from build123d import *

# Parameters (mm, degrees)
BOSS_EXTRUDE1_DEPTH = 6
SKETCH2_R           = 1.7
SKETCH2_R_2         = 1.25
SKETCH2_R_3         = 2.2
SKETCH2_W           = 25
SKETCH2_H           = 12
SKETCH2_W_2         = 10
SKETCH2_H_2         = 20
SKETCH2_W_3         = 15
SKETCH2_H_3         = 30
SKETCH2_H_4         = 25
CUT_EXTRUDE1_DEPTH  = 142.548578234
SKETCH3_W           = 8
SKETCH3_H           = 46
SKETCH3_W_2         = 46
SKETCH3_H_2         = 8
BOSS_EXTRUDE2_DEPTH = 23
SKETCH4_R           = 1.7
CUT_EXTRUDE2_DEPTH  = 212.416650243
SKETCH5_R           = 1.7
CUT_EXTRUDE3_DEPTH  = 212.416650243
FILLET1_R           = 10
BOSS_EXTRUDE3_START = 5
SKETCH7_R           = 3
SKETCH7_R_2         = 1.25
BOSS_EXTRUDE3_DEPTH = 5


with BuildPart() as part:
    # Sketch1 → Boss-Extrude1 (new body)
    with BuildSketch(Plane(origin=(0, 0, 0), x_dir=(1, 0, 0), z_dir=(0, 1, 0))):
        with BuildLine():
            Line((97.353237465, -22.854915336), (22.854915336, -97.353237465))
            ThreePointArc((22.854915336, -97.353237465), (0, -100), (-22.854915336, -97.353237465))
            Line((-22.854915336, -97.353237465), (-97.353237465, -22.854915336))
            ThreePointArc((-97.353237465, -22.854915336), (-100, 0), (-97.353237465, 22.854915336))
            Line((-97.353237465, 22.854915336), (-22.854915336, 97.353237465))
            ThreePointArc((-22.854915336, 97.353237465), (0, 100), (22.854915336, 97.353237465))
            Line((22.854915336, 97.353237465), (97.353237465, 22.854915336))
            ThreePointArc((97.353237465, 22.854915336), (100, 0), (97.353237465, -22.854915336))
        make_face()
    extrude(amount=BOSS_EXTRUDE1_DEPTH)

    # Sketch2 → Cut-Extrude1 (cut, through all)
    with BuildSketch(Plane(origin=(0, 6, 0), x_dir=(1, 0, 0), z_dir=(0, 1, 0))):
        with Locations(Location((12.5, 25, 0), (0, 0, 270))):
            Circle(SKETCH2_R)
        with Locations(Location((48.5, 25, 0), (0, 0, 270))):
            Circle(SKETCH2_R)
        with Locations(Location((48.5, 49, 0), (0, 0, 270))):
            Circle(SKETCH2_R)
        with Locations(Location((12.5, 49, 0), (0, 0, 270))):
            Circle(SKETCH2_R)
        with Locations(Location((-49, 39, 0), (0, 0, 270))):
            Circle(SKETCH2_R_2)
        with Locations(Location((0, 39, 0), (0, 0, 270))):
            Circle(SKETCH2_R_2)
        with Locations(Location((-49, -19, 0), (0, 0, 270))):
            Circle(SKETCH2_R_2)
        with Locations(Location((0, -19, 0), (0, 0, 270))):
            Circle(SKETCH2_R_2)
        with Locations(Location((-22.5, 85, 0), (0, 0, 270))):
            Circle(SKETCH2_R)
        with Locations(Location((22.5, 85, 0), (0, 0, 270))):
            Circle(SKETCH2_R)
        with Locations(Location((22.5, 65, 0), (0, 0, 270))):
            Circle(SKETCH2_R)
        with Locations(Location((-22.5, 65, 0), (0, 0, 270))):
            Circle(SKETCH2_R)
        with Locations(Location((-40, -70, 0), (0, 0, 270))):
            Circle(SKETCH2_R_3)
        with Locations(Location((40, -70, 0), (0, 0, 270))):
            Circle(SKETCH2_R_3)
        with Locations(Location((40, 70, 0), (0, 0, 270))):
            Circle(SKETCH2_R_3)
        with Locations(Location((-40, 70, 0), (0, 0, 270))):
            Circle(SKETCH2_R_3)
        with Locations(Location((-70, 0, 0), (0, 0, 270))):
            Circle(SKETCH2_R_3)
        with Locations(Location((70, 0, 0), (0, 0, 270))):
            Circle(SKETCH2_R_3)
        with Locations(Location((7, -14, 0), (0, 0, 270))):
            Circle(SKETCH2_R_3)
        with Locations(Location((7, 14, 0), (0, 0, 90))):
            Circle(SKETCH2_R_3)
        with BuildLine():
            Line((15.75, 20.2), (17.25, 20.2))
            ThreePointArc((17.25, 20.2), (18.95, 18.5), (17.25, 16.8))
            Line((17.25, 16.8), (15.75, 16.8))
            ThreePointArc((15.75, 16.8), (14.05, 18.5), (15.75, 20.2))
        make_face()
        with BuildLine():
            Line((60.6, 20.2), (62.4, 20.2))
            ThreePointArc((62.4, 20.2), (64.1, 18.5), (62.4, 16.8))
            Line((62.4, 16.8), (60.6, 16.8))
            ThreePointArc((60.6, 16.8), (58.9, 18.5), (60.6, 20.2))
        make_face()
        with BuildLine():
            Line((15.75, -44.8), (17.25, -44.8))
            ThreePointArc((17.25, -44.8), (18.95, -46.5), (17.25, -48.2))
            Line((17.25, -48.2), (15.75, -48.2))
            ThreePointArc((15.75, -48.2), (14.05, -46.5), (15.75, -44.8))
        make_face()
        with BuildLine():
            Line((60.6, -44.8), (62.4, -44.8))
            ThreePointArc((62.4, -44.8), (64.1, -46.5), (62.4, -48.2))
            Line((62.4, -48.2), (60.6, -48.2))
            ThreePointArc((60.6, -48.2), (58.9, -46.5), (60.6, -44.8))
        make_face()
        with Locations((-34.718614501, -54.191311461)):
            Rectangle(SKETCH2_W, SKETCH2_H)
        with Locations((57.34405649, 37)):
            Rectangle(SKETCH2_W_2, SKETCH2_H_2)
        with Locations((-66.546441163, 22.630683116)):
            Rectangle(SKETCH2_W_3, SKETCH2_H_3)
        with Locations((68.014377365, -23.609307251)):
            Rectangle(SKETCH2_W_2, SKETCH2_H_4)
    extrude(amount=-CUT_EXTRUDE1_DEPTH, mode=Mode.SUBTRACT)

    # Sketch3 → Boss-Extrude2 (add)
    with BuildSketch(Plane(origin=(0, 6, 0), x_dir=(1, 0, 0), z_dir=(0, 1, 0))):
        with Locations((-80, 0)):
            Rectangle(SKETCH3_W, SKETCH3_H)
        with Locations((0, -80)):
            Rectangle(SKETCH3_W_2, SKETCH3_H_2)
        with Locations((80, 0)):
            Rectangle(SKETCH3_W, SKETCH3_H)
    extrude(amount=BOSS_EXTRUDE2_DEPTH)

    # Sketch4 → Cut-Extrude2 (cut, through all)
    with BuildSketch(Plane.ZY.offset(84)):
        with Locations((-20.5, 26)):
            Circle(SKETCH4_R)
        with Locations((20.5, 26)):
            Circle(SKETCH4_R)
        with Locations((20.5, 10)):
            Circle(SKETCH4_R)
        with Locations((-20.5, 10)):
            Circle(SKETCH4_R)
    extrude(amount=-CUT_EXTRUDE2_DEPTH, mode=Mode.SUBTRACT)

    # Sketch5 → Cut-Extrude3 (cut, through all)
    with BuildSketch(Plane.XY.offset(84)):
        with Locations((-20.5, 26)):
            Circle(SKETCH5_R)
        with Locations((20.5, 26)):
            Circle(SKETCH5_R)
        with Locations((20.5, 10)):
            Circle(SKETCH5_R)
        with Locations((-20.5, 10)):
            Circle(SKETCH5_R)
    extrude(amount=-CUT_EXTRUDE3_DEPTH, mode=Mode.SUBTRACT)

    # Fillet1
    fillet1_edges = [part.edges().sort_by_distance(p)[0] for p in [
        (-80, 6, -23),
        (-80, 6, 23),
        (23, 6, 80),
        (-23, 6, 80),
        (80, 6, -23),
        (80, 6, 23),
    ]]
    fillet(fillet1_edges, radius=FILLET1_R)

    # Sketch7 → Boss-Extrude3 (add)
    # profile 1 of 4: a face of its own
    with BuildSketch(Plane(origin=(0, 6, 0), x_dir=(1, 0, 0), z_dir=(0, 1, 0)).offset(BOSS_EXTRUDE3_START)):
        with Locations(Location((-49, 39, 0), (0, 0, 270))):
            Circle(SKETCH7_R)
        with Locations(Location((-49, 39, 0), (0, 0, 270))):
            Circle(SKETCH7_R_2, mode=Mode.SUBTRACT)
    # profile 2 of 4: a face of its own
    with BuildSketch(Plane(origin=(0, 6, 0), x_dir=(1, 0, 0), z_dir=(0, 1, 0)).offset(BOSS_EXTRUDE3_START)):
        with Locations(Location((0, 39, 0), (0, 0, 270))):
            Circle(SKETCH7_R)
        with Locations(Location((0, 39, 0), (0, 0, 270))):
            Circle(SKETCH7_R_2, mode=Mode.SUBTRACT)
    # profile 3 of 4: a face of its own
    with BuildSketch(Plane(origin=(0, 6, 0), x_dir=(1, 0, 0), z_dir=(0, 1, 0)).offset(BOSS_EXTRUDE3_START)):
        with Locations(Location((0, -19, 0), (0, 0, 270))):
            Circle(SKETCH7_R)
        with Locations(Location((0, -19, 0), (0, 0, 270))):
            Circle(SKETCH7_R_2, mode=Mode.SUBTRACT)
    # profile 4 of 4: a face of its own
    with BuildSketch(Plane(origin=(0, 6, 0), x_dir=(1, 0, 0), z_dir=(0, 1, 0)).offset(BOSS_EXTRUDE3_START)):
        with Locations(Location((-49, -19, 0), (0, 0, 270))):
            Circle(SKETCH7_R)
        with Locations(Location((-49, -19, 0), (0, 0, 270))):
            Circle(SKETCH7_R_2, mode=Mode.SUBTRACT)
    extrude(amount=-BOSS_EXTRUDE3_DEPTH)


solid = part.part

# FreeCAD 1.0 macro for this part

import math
import FreeCAD as App
import Part
import Sketcher

V = App.Vector
Q = App.Units.Quantity


def edges_at(feature, points):
    """Names of the edges that pass closest to the given points."""
    edges = feature.Shape.Edges
    near = lambda p: min(range(len(edges)), key=lambda i: edges[i].distToShape(Part.Vertex(*p))[0])
    return sorted({f"Edge{near(p) + 1}" for p in points})

doc = App.newDocument("Part")
body = doc.addObject("PartDesign::Body", "Body")

# Sketch on XZ plane
sketch1 = body.newObject("Sketcher::SketchObject", "Sketch")
sketch1.AttachmentSupport = (doc.getObject("XZ_Plane"), [""])
sketch1.MapMode = "FlatFace"
sketch1.addGeometry(Part.LineSegment(V(22.854915, 97.353237, 0), V(97.353237, 22.854915, 0)), False)
sketch1.addGeometry(Part.ArcOfCircle(Part.Circle(V(0, 0, 0), V(0, 0, 1), 100), math.radians(-13.211669), math.radians(13.211669)), False)
sketch1.addGeometry(Part.LineSegment(V(97.353237, -22.854915, 0), V(22.854915, -97.353237, 0)), False)
sketch1.addGeometry(Part.ArcOfCircle(Part.Circle(V(0, 0, 0), V(0, 0, 1), 100), math.radians(-103.211669), math.radians(-76.788331)), False)
sketch1.addGeometry(Part.LineSegment(V(-22.854915, -97.353237, 0), V(-97.353237, -22.854915, 0)), False)
sketch1.addGeometry(Part.ArcOfCircle(Part.Circle(V(0, 0, 0), V(0, 0, 1), 100), math.radians(166.788331), math.radians(193.211669)), False)
sketch1.addGeometry(Part.LineSegment(V(-97.353237, 22.854915, 0), V(-22.854915, 97.353237, 0)), False)
sketch1.addGeometry(Part.ArcOfCircle(Part.Circle(V(0, 0, 0), V(0, 0, 1), 100), math.radians(76.788331), math.radians(103.211669)), False)
sketch1.addConstraint(Sketcher.Constraint("Coincident", 0, 2, 1, 2))
sketch1.addConstraint(Sketcher.Constraint("Coincident", 1, 1, 2, 1))
sketch1.addConstraint(Sketcher.Constraint("Coincident", 2, 2, 3, 2))
sketch1.addConstraint(Sketcher.Constraint("Coincident", 3, 1, 4, 1))
sketch1.addConstraint(Sketcher.Constraint("Coincident", 4, 2, 5, 2))
sketch1.addConstraint(Sketcher.Constraint("Coincident", 5, 1, 6, 1))
sketch1.addConstraint(Sketcher.Constraint("Coincident", 6, 2, 7, 2))
sketch1.addConstraint(Sketcher.Constraint("Coincident", 7, 1, 0, 1))
sketch1.addConstraint(Sketcher.Constraint("Coincident", 1, 3, -1, 1))
sketch1.addConstraint(Sketcher.Constraint("Coincident", 3, 3, -1, 1))
sketch1.addConstraint(Sketcher.Constraint("Coincident", 5, 3, -1, 1))
sketch1.addConstraint(Sketcher.Constraint("Coincident", 7, 3, -1, 1))
sketch1.addConstraint(Sketcher.Constraint("Equal", 1, 3))
sketch1.addConstraint(Sketcher.Constraint("Equal", 3, 5))
sketch1.addConstraint(Sketcher.Constraint("Equal", 5, 7))
sketch1.addConstraint(Sketcher.Constraint("Perpendicular", 0, 2))
sketch1.addConstraint(Sketcher.Constraint("Perpendicular", 2, 4))
sketch1.addConstraint(Sketcher.Constraint("Perpendicular", 4, 6))
sketch1.addConstraint(Sketcher.Constraint("Horizontal", 2, 2, 3, 1))
sketch1.addConstraint(Sketcher.Constraint("Horizontal", 1, 1, 4, 2))
sketch1.addConstraint(Sketcher.Constraint("Horizontal", 0, 2, 5, 1))
sketch1.addConstraint(Sketcher.Constraint("Vertical", 0, 2, 1, 1))
sketch1.addConstraint(Sketcher.Constraint("Radius", 1, Q("100 mm")))
sketch1.addConstraint(Sketcher.Constraint("DistanceY", 1, 1, 0, 2, Q("45.709831 mm")))
pad1 = body.newObject("PartDesign::Pad", "Pad")
pad1.Profile = sketch1
pad1.Length = 6
pad1.Reversed = True

# Sketch on XZ plane
sketch2 = body.newObject("Sketcher::SketchObject", "Sketch001")
sketch2.AttachmentSupport = (doc.getObject("XZ_Plane"), [""])
sketch2.MapMode = "FlatFace"
sketch2.AttachmentOffset = App.Placement(V(0, 0, -6), App.Rotation())
sketch2.addGeometry(Part.Circle(V(12.5, -25, 0), V(0, 0, 1), 1.7), False)
sketch2.addGeometry(Part.Circle(V(48.5, -25, 0), V(0, 0, 1), 1.7), False)
sketch2.addGeometry(Part.Circle(V(48.5, -49, 0), V(0, 0, 1), 1.7), False)
sketch2.addGeometry(Part.Circle(V(12.5, -49, 0), V(0, 0, 1), 1.7), False)
sketch2.addGeometry(Part.Circle(V(-49, -39, 0), V(0, 0, 1), 1.25), False)
sketch2.addGeometry(Part.Circle(V(0, -39, 0), V(0, 0, 1), 1.25), False)
sketch2.addGeometry(Part.Circle(V(-49, 19, 0), V(0, 0, 1), 1.25), False)
sketch2.addGeometry(Part.Circle(V(0, 19, 0), V(0, 0, 1), 1.25), False)
sketch2.addGeometry(Part.Circle(V(-22.5, -85, 0), V(0, 0, 1), 1.7), False)
sketch2.addGeometry(Part.Circle(V(22.5, -85, 0), V(0, 0, 1), 1.7), False)
sketch2.addGeometry(Part.Circle(V(22.5, -65, 0), V(0, 0, 1), 1.7), False)
sketch2.addGeometry(Part.Circle(V(-22.5, -65, 0), V(0, 0, 1), 1.7), False)
sketch2.addGeometry(Part.Circle(V(-40, 70, 0), V(0, 0, 1), 2.2), False)
sketch2.addGeometry(Part.Circle(V(40, 70, 0), V(0, 0, 1), 2.2), False)
sketch2.addGeometry(Part.Circle(V(40, -70, 0), V(0, 0, 1), 2.2), False)
sketch2.addGeometry(Part.Circle(V(-40, -70, 0), V(0, 0, 1), 2.2), False)
sketch2.addGeometry(Part.Circle(V(-70, 0, 0), V(0, 0, 1), 2.2), False)
sketch2.addGeometry(Part.Circle(V(70, 0, 0), V(0, 0, 1), 2.2), False)
sketch2.addGeometry(Part.Circle(V(7, 14, 0), V(0, 0, 1), 2.2), False)
sketch2.addGeometry(Part.Circle(V(7, -14, 0), V(0, 0, 1), 2.2), False)
sketch2.addGeometry(Part.LineSegment(V(17.25, -20.2, 0), V(15.75, -20.2, 0)), False)
sketch2.addGeometry(Part.ArcOfCircle(Part.Circle(V(15.75, -18.5, 0), V(0, 0, 1), 1.7), math.radians(90), math.radians(270)), False)
sketch2.addGeometry(Part.LineSegment(V(15.75, -16.8, 0), V(17.25, -16.8, 0)), False)
sketch2.addGeometry(Part.ArcOfCircle(Part.Circle(V(17.25, -18.5, 0), V(0, 0, 1), 1.7), math.radians(-90), math.radians(90)), False)
sketch2.addGeometry(Part.LineSegment(V(62.4, -20.2, 0), V(60.6, -20.2, 0)), False)
sketch2.addGeometry(Part.ArcOfCircle(Part.Circle(V(60.6, -18.5, 0), V(0, 0, 1), 1.7), math.radians(90), math.radians(270)), False)
sketch2.addGeometry(Part.LineSegment(V(60.6, -16.8, 0), V(62.4, -16.8, 0)), False)
sketch2.addGeometry(Part.ArcOfCircle(Part.Circle(V(62.4, -18.5, 0), V(0, 0, 1), 1.7), math.radians(-90), math.radians(90)), False)
sketch2.addGeometry(Part.LineSegment(V(17.25, 44.8, 0), V(15.75, 44.8, 0)), False)
sketch2.addGeometry(Part.ArcOfCircle(Part.Circle(V(15.75, 46.5, 0), V(0, 0, 1), 1.7), math.radians(90), math.radians(270)), False)
sketch2.addGeometry(Part.LineSegment(V(15.75, 48.2, 0), V(17.25, 48.2, 0)), False)
sketch2.addGeometry(Part.ArcOfCircle(Part.Circle(V(17.25, 46.5, 0), V(0, 0, 1), 1.7), math.radians(-90), math.radians(90)), False)
sketch2.addGeometry(Part.LineSegment(V(62.4, 44.8, 0), V(60.6, 44.8, 0)), False)
sketch2.addGeometry(Part.ArcOfCircle(Part.Circle(V(60.6, 46.5, 0), V(0, 0, 1), 1.7), math.radians(90), math.radians(270)), False)
sketch2.addGeometry(Part.LineSegment(V(60.6, 48.2, 0), V(62.4, 48.2, 0)), False)
sketch2.addGeometry(Part.ArcOfCircle(Part.Circle(V(62.4, 46.5, 0), V(0, 0, 1), 1.7), math.radians(-90), math.radians(90)), False)
sketch2.addGeometry(Part.LineSegment(V(-47.218615, 48.191311, 0), V(-47.218615, 60.191311, 0)), False)
sketch2.addGeometry(Part.LineSegment(V(-47.218615, 60.191311, 0), V(-22.218615, 60.191311, 0)), False)
sketch2.addGeometry(Part.LineSegment(V(-22.218615, 60.191311, 0), V(-22.218615, 48.191311, 0)), False)
sketch2.addGeometry(Part.LineSegment(V(-22.218615, 48.191311, 0), V(-47.218615, 48.191311, 0)), False)
sketch2.addGeometry(Part.LineSegment(V(52.344056, -47, 0), V(52.344056, -27, 0)), False)
sketch2.addGeometry(Part.LineSegment(V(52.344056, -27, 0), V(62.344056, -27, 0)), False)
sketch2.addGeometry(Part.LineSegment(V(62.344056, -27, 0), V(62.344056, -47, 0)), False)
sketch2.addGeometry(Part.LineSegment(V(62.344056, -47, 0), V(52.344056, -47, 0)), False)
sketch2.addGeometry(Part.LineSegment(V(-74.046441, -37.630683, 0), V(-74.046441, -7.630683, 0)), False)
sketch2.addGeometry(Part.LineSegment(V(-74.046441, -7.630683, 0), V(-59.046441, -7.630683, 0)), False)
sketch2.addGeometry(Part.LineSegment(V(-59.046441, -7.630683, 0), V(-59.046441, -37.630683, 0)), False)
sketch2.addGeometry(Part.LineSegment(V(-59.046441, -37.630683, 0), V(-74.046441, -37.630683, 0)), False)
sketch2.addGeometry(Part.LineSegment(V(63.014377, 11.109307, 0), V(63.014377, 36.109307, 0)), False)
sketch2.addGeometry(Part.LineSegment(V(63.014377, 36.109307, 0), V(73.014377, 36.109307, 0)), False)
sketch2.addGeometry(Part.LineSegment(V(73.014377, 36.109307, 0), V(73.014377, 11.109307, 0)), False)
sketch2.addGeometry(Part.LineSegment(V(73.014377, 11.109307, 0), V(63.014377, 11.109307, 0)), False)
sketch2.addConstraint(Sketcher.Constraint("Tangent", 20, 2, 21, 2))
sketch2.addConstraint(Sketcher.Constraint("Tangent", 21, 1, 22, 1))
sketch2.addConstraint(Sketcher.Constraint("Tangent", 22, 2, 23, 2))
sketch2.addConstraint(Sketcher.Constraint("Tangent", 23, 1, 20, 1))
sketch2.addConstraint(Sketcher.Constraint("Tangent", 24, 2, 25, 2))
sketch2.addConstraint(Sketcher.Constraint("Tangent", 25, 1, 26, 1))
sketch2.addConstraint(Sketcher.Constraint("Tangent", 26, 2, 27, 2))
sketch2.addConstraint(Sketcher.Constraint("Tangent", 27, 1, 24, 1))
sketch2.addConstraint(Sketcher.Constraint("Tangent", 28, 2, 29, 2))
sketch2.addConstraint(Sketcher.Constraint("Tangent", 29, 1, 30, 1))
sketch2.addConstraint(Sketcher.Constraint("Tangent", 30, 2, 31, 2))
sketch2.addConstraint(Sketcher.Constraint("Tangent", 31, 1, 28, 1))
sketch2.addConstraint(Sketcher.Constraint("Tangent", 32, 2, 33, 2))
sketch2.addConstraint(Sketcher.Constraint("Tangent", 33, 1, 34, 1))
sketch2.addConstraint(Sketcher.Constraint("Tangent", 34, 2, 35, 2))
sketch2.addConstraint(Sketcher.Constraint("Tangent", 35, 1, 32, 1))
sketch2.addConstraint(Sketcher.Constraint("Coincident", 36, 2, 37, 1))
sketch2.addConstraint(Sketcher.Constraint("Coincident", 37, 2, 38, 1))
sketch2.addConstraint(Sketcher.Constraint("Coincident", 38, 2, 39, 1))
sketch2.addConstraint(Sketcher.Constraint("Coincident", 39, 2, 36, 1))
sketch2.addConstraint(Sketcher.Constraint("Coincident", 40, 2, 41, 1))
sketch2.addConstraint(Sketcher.Constraint("Coincident", 41, 2, 42, 1))
sketch2.addConstraint(Sketcher.Constraint("Coincident", 42, 2, 43, 1))
sketch2.addConstraint(Sketcher.Constraint("Coincident", 43, 2, 40, 1))
sketch2.addConstraint(Sketcher.Constraint("Coincident", 44, 2, 45, 1))
sketch2.addConstraint(Sketcher.Constraint("Coincident", 45, 2, 46, 1))
sketch2.addConstraint(Sketcher.Constraint("Coincident", 46, 2, 47, 1))
sketch2.addConstraint(Sketcher.Constraint("Coincident", 47, 2, 44, 1))
sketch2.addConstraint(Sketcher.Constraint("Coincident", 48, 2, 49, 1))
sketch2.addConstraint(Sketcher.Constraint("Coincident", 49, 2, 50, 1))
sketch2.addConstraint(Sketcher.Constraint("Coincident", 50, 2, 51, 1))
sketch2.addConstraint(Sketcher.Constraint("Coincident", 51, 2, 48, 1))
sketch2.addConstraint(Sketcher.Constraint("Horizontal", 20))
sketch2.addConstraint(Sketcher.Constraint("Horizontal", 22))
sketch2.addConstraint(Sketcher.Constraint("Horizontal", 24))
sketch2.addConstraint(Sketcher.Constraint("Horizontal", 26))
sketch2.addConstraint(Sketcher.Constraint("Horizontal", 28))
sketch2.addConstraint(Sketcher.Constraint("Horizontal", 30))
sketch2.addConstraint(Sketcher.Constraint("Horizontal", 32))
sketch2.addConstraint(Sketcher.Constraint("Horizontal", 34))
sketch2.addConstraint(Sketcher.Constraint("Vertical", 36))
sketch2.addConstraint(Sketcher.Constraint("Horizontal", 37))
sketch2.addConstraint(Sketcher.Constraint("Vertical", 38))
sketch2.addConstraint(Sketcher.Constraint("Horizontal", 39))
sketch2.addConstraint(Sketcher.Constraint("Vertical", 40))
sketch2.addConstraint(Sketcher.Constraint("Horizontal", 41))
sketch2.addConstraint(Sketcher.Constraint("Vertical", 42))
sketch2.addConstraint(Sketcher.Constraint("Horizontal", 43))
sketch2.addConstraint(Sketcher.Constraint("Vertical", 44))
sketch2.addConstraint(Sketcher.Constraint("Horizontal", 45))
sketch2.addConstraint(Sketcher.Constraint("Vertical", 46))
sketch2.addConstraint(Sketcher.Constraint("Horizontal", 47))
sketch2.addConstraint(Sketcher.Constraint("Vertical", 48))
sketch2.addConstraint(Sketcher.Constraint("Horizontal", 49))
sketch2.addConstraint(Sketcher.Constraint("Vertical", 50))
sketch2.addConstraint(Sketcher.Constraint("Horizontal", 51))
sketch2.addConstraint(Sketcher.Constraint("Equal", 0, 1))
sketch2.addConstraint(Sketcher.Constraint("Equal", 1, 2))
sketch2.addConstraint(Sketcher.Constraint("Equal", 2, 3))
sketch2.addConstraint(Sketcher.Constraint("Equal", 4, 5))
sketch2.addConstraint(Sketcher.Constraint("Equal", 5, 6))
sketch2.addConstraint(Sketcher.Constraint("Equal", 6, 7))
sketch2.addConstraint(Sketcher.Constraint("Equal", 3, 8))
sketch2.addConstraint(Sketcher.Constraint("Equal", 8, 9))
sketch2.addConstraint(Sketcher.Constraint("Equal", 9, 10))
sketch2.addConstraint(Sketcher.Constraint("Equal", 10, 11))
sketch2.addConstraint(Sketcher.Constraint("Equal", 12, 13))
sketch2.addConstraint(Sketcher.Constraint("Equal", 13, 14))
sketch2.addConstraint(Sketcher.Constraint("Equal", 14, 15))
sketch2.addConstraint(Sketcher.Constraint("Equal", 15, 16))
sketch2.addConstraint(Sketcher.Constraint("Equal", 16, 17))
sketch2.addConstraint(Sketcher.Constraint("Equal", 17, 18))
sketch2.addConstraint(Sketcher.Constraint("Equal", 18, 19))
sketch2.addConstraint(Sketcher.Constraint("Equal", 11, 21))
sketch2.addConstraint(Sketcher.Constraint("Equal", 23, 25))
sketch2.addConstraint(Sketcher.Constraint("Equal", 27, 29))
sketch2.addConstraint(Sketcher.Constraint("Equal", 31, 33))
sketch2.addConstraint(Sketcher.Constraint("Symmetric", 12, 3, 14, 3, -1, 1))
sketch2.addConstraint(Sketcher.Constraint("Symmetric", 13, 3, 15, 3, -1, 1))
sketch2.addConstraint(Sketcher.Constraint("Symmetric", 16, 3, 17, 3, -1, 1))
sketch2.addConstraint(Sketcher.Constraint("Symmetric", 8, 3, 9, 3, -2))
sketch2.addConstraint(Sketcher.Constraint("Symmetric", 10, 3, 11, 3, -2))
sketch2.addConstraint(Sketcher.Constraint("Symmetric", 12, 3, 13, 3, -2))
sketch2.addConstraint(Sketcher.Constraint("Symmetric", 18, 3, 19, 3, -1))
sketch2.addConstraint(Sketcher.Constraint("PointOnObject", 5, 3, -2))
sketch2.addConstraint(Sketcher.Constraint("PointOnObject", 7, 3, -2))
sketch2.addConstraint(Sketcher.Constraint("PointOnObject", 16, 3, -1))
sketch2.addConstraint(Sketcher.Constraint("Horizontal", 0, 3, 1, 3))
sketch2.addConstraint(Sketcher.Constraint("Horizontal", 2, 3, 3, 3))
sketch2.addConstraint(Sketcher.Constraint("Horizontal", 4, 3, 5, 3))
sketch2.addConstraint(Sketcher.Constraint("Horizontal", 6, 3, 7, 3))
sketch2.addConstraint(Sketcher.Constraint("Horizontal", 23, 3, 25, 3))
sketch2.addConstraint(Sketcher.Constraint("Horizontal", 31, 3, 33, 3))
sketch2.addConstraint(Sketcher.Constraint("Vertical", 1, 3, 2, 3))
sketch2.addConstraint(Sketcher.Constraint("Vertical", 0, 3, 3, 3))
sketch2.addConstraint(Sketcher.Constraint("Vertical", 4, 3, 6, 3))
sketch2.addConstraint(Sketcher.Constraint("Vertical", 9, 3, 10, 3))
sketch2.addConstraint(Sketcher.Constraint("Vertical", 21, 3, 29, 3))
sketch2.addConstraint(Sketcher.Constraint("Vertical", 23, 3, 31, 3))
sketch2.addConstraint(Sketcher.Constraint("Vertical", 25, 3, 33, 3))
sketch2.addConstraint(Sketcher.Constraint("Vertical", 27, 3, 35, 3))
sketch2.addConstraint(Sketcher.Constraint("Equal", 43, 49))
sketch2.addConstraint(Sketcher.Constraint("Equal", 39, 48))
sketch2.addConstraint(Sketcher.Constraint("Diameter", 0, Q("3.4 mm")))
sketch2.addConstraint(Sketcher.Constraint("Diameter", 4, Q("2.5 mm")))
sketch2.addConstraint(Sketcher.Constraint("Diameter", 12, Q("4.4 mm")))
sketch2.addConstraint(Sketcher.Constraint("DistanceX", 37, 1, 37, 2, Q("25 mm")))
sketch2.addConstraint(Sketcher.Constraint("DistanceX", 41, 1, 41, 2, Q("10 mm")))
sketch2.addConstraint(Sketcher.Constraint("DistanceX", 45, 1, 45, 2, Q("15 mm")))
sketch2.addConstraint(Sketcher.Constraint("DistanceY", 36, 1, 36, 2, Q("12 mm")))
sketch2.addConstraint(Sketcher.Constraint("DistanceY", 40, 1, 40, 2, Q("20 mm")))
sketch2.addConstraint(Sketcher.Constraint("DistanceY", 44, 1, 44, 2, Q("30 mm")))
sketch2.addConstraint(Sketcher.Constraint("DistanceX", 20, 2, 20, 1, Q("1.5 mm")))
sketch2.addConstraint(Sketcher.Constraint("DistanceX", 24, 2, 24, 1, Q("1.8 mm")))
sketch2.addConstraint(Sketcher.Constraint("DistanceY", 0, 3, -1, 1, Q("25 mm")))
sketch2.addConstraint(Sketcher.Constraint("DistanceY", 2, 3, -1, 1, Q("49 mm")))
sketch2.addConstraint(Sketcher.Constraint("DistanceX", 4, 3, -1, 1, Q("49 mm")))
sketch2.addConstraint(Sketcher.Constraint("DistanceY", 4, 3, -1, 1, Q("39 mm")))
sketch2.addConstraint(Sketcher.Constraint("DistanceY", -1, 1, 6, 3, Q("19 mm")))
sketch2.addConstraint(Sketcher.Constraint("DistanceY", 8, 3, -1, 1, Q("85 mm")))
sketch2.addConstraint(Sketcher.Constraint("DistanceY", 10, 3, -1, 1, Q("65 mm")))
sketch2.addConstraint(Sketcher.Constraint("DistanceX", 12, 3, -1, 1, Q("40 mm")))
sketch2.addConstraint(Sketcher.Constraint("DistanceY", -1, 1, 12, 3, Q("70 mm")))
sketch2.addConstraint(Sketcher.Constraint("DistanceX", 16, 3, -1, 1, Q("70 mm")))
sketch2.addConstraint(Sketcher.Constraint("DistanceX", -1, 1, 18, 3, Q("7 mm")))
sketch2.addConstraint(Sketcher.Constraint("DistanceY", -1, 1, 18, 3, Q("14 mm")))
sketch2.addConstraint(Sketcher.Constraint("DistanceY", 40, 2, -1, 1, Q("27 mm")))
sketch2.addConstraint(Sketcher.Constraint("DistanceX", 0, 3, 1, 3, Q("36 mm")))
sketch2.addConstraint(Sketcher.Constraint("DistanceX", 8, 3, 3, 3, Q("35 mm")))
sketch2.addConstraint(Sketcher.Constraint("DistanceX", 3, 3, 9, 3, Q("10 mm")))
sketch2.addConstraint(Sketcher.Constraint("DistanceY", 21, 3, -1, 1, Q("18.5 mm")))
sketch2.addConstraint(Sketcher.Constraint("DistanceX", -1, 1, 25, 3, Q("60.6 mm")))
sketch2.addConstraint(Sketcher.Constraint("DistanceY", -1, 1, 29, 3, Q("46.5 mm")))
sketch2.addConstraint(Sketcher.Constraint("DistanceX", -1, 1, 21, 3, Q("15.75 mm")))
sketch2.addConstraint(Sketcher.Constraint("DistanceY", -1, 1, 36, 2, Q("60.191311 mm")))
sketch2.addConstraint(Sketcher.Constraint("DistanceX", 44, 2, -1, 1, Q("74.046441 mm")))
sketch2.addConstraint(Sketcher.Constraint("DistanceX", 36, 2, -1, 1, Q("47.218615 mm")))
sketch2.addConstraint(Sketcher.Constraint("DistanceX", -1, 1, 40, 2, Q("52.344056 mm")))
sketch2.addConstraint(Sketcher.Constraint("DistanceY", 44, 2, -1, 1, Q("7.630683 mm")))
sketch2.addConstraint(Sketcher.Constraint("DistanceX", -1, 1, 48, 2, Q("63.014377 mm")))
sketch2.addConstraint(Sketcher.Constraint("DistanceY", -1, 1, 48, 2, Q("36.109307 mm")))
pocket1 = body.newObject("PartDesign::Pocket", "Pocket")
pocket1.Profile = sketch2
pocket1.Type = "ThroughAll"
pocket1.Reversed = True

# Sketch on XZ plane
sketch3 = body.newObject("Sketcher::SketchObject", "Sketch002")
sketch3.AttachmentSupport = (doc.getObject("XZ_Plane"), [""])
sketch3.MapMode = "FlatFace"
sketch3.AttachmentOffset = App.Placement(V(0, 0, -6), App.Rotation())
sketch3.addGeometry(Part.LineSegment(V(-84, -23, 0), V(-84, 23, 0)), False)
sketch3.addGeometry(Part.LineSegment(V(-84, 23, 0), V(-76, 23, 0)), False)
sketch3.addGeometry(Part.LineSegment(V(-76, 23, 0), V(-76, -23, 0)), False)
sketch3.addGeometry(Part.LineSegment(V(-76, -23, 0), V(-84, -23, 0)), False)
sketch3.addGeometry(Part.LineSegment(V(-23, 76, 0), V(-23, 84, 0)), False)
sketch3.addGeometry(Part.LineSegment(V(-23, 84, 0), V(23, 84, 0)), False)
sketch3.addGeometry(Part.LineSegment(V(23, 84, 0), V(23, 76, 0)), False)
sketch3.addGeometry(Part.LineSegment(V(23, 76, 0), V(-23, 76, 0)), False)
sketch3.addGeometry(Part.LineSegment(V(76, -23, 0), V(76, 23, 0)), False)
sketch3.addGeometry(Part.LineSegment(V(76, 23, 0), V(84, 23, 0)), False)
sketch3.addGeometry(Part.LineSegment(V(84, 23, 0), V(84, -23, 0)), False)
sketch3.addGeometry(Part.LineSegment(V(84, -23, 0), V(76, -23, 0)), False)
sketch3.addConstraint(Sketcher.Constraint("Coincident", 0, 2, 1, 1))
sketch3.addConstraint(Sketcher.Constraint("Coincident", 1, 2, 2, 1))
sketch3.addConstraint(Sketcher.Constraint("Coincident", 2, 2, 3, 1))
sketch3.addConstraint(Sketcher.Constraint("Coincident", 3, 2, 0, 1))
sketch3.addConstraint(Sketcher.Constraint("Coincident", 4, 2, 5, 1))
sketch3.addConstraint(Sketcher.Constraint("Coincident", 5, 2, 6, 1))
sketch3.addConstraint(Sketcher.Constraint("Coincident", 6, 2, 7, 1))
sketch3.addConstraint(Sketcher.Constraint("Coincident", 7, 2, 4, 1))
sketch3.addConstraint(Sketcher.Constraint("Coincident", 8, 2, 9, 1))
sketch3.addConstraint(Sketcher.Constraint("Coincident", 9, 2, 10, 1))
sketch3.addConstraint(Sketcher.Constraint("Coincident", 10, 2, 11, 1))
sketch3.addConstraint(Sketcher.Constraint("Coincident", 11, 2, 8, 1))
sketch3.addConstraint(Sketcher.Constraint("Vertical", 0))
sketch3.addConstraint(Sketcher.Constraint("Horizontal", 1))
sketch3.addConstraint(Sketcher.Constraint("Vertical", 2))
sketch3.addConstraint(Sketcher.Constraint("Horizontal", 3))
sketch3.addConstraint(Sketcher.Constraint("Vertical", 4))
sketch3.addConstraint(Sketcher.Constraint("Horizontal", 5))
sketch3.addConstraint(Sketcher.Constraint("Vertical", 6))
sketch3.addConstraint(Sketcher.Constraint("Horizontal", 7))
sketch3.addConstraint(Sketcher.Constraint("Vertical", 8))
sketch3.addConstraint(Sketcher.Constraint("Horizontal", 9))
sketch3.addConstraint(Sketcher.Constraint("Vertical", 10))
sketch3.addConstraint(Sketcher.Constraint("Horizontal", 11))
sketch3.addConstraint(Sketcher.Constraint("Symmetric", 2, 2, 8, 2, -1, 1))
sketch3.addConstraint(Sketcher.Constraint("Symmetric", 0, 2, 10, 2, -1, 1))
sketch3.addConstraint(Sketcher.Constraint("Horizontal", 1, 2, 8, 2))
sketch3.addConstraint(Sketcher.Constraint("Equal", 7, 0))
sketch3.addConstraint(Sketcher.Constraint("Equal", 11, 4))
sketch3.addConstraint(Sketcher.Constraint("DistanceX", 1, 1, 1, 2, Q("8 mm")))
sketch3.addConstraint(Sketcher.Constraint("DistanceX", 5, 1, 5, 2, Q("46 mm")))
sketch3.addConstraint(Sketcher.Constraint("DistanceX", 0, 2, -1, 1, Q("84 mm")))
sketch3.addConstraint(Sketcher.Constraint("DistanceX", 4, 2, -1, 1, Q("23 mm")))
sketch3.addConstraint(Sketcher.Constraint("DistanceY", -1, 1, 4, 2, Q("84 mm")))
pad2 = body.newObject("PartDesign::Pad", "Pad001")
pad2.Profile = sketch3
pad2.Length = 23
pad2.Reversed = True

# Sketch on YZ plane
sketch4 = body.newObject("Sketcher::SketchObject", "Sketch003")
sketch4.AttachmentSupport = (doc.getObject("YZ_Plane"), [""])
sketch4.MapMode = "FlatFace"
sketch4.AttachmentOffset = App.Placement(V(0, 0, -84), App.Rotation())
sketch4.addGeometry(Part.Circle(V(26, -20.5, 0), V(0, 0, 1), 1.7), False)
sketch4.addGeometry(Part.Circle(V(26, 20.5, 0), V(0, 0, 1), 1.7), False)
sketch4.addGeometry(Part.Circle(V(10, 20.5, 0), V(0, 0, 1), 1.7), False)
sketch4.addGeometry(Part.Circle(V(10, -20.5, 0), V(0, 0, 1), 1.7), False)
sketch4.addConstraint(Sketcher.Constraint("Equal", 0, 1))
sketch4.addConstraint(Sketcher.Constraint("Equal", 1, 2))
sketch4.addConstraint(Sketcher.Constraint("Equal", 2, 3))
sketch4.addConstraint(Sketcher.Constraint("Symmetric", 0, 3, 1, 3, -1))
sketch4.addConstraint(Sketcher.Constraint("Symmetric", 2, 3, 3, 3, -1))
sketch4.addConstraint(Sketcher.Constraint("Horizontal", 1, 3, 2, 3))
sketch4.addConstraint(Sketcher.Constraint("Diameter", 0, Q("3.4 mm")))
sketch4.addConstraint(Sketcher.Constraint("DistanceX", -1, 1, 0, 3, Q("26 mm")))
sketch4.addConstraint(Sketcher.Constraint("DistanceX", -1, 1, 2, 3, Q("10 mm")))
sketch4.addConstraint(Sketcher.Constraint("DistanceY", 0, 3, 1, 3, Q("41 mm")))
pocket2 = body.newObject("PartDesign::Pocket", "Pocket001")
pocket2.Profile = sketch4
pocket2.Type = "ThroughAll"
pocket2.Reversed = True

# Sketch on XY plane
sketch5 = body.newObject("Sketcher::SketchObject", "Sketch004")
sketch5.AttachmentSupport = (doc.getObject("XY_Plane"), [""])
sketch5.MapMode = "FlatFace"
sketch5.AttachmentOffset = App.Placement(V(0, 0, 84), App.Rotation())
sketch5.addGeometry(Part.Circle(V(-20.5, 26, 0), V(0, 0, 1), 1.7), False)
sketch5.addGeometry(Part.Circle(V(20.5, 26, 0), V(0, 0, 1), 1.7), False)
sketch5.addGeometry(Part.Circle(V(20.5, 10, 0), V(0, 0, 1), 1.7), False)
sketch5.addGeometry(Part.Circle(V(-20.5, 10, 0), V(0, 0, 1), 1.7), False)
sketch5.addConstraint(Sketcher.Constraint("Equal", 0, 1))
sketch5.addConstraint(Sketcher.Constraint("Equal", 1, 2))
sketch5.addConstraint(Sketcher.Constraint("Equal", 2, 3))
sketch5.addConstraint(Sketcher.Constraint("Symmetric", 0, 3, 1, 3, -2))
sketch5.addConstraint(Sketcher.Constraint("Symmetric", 2, 3, 3, 3, -2))
sketch5.addConstraint(Sketcher.Constraint("Vertical", 1, 3, 2, 3))
sketch5.addConstraint(Sketcher.Constraint("Diameter", 0, Q("3.4 mm")))
sketch5.addConstraint(Sketcher.Constraint("DistanceY", -1, 1, 0, 3, Q("26 mm")))
sketch5.addConstraint(Sketcher.Constraint("DistanceY", -1, 1, 2, 3, Q("10 mm")))
sketch5.addConstraint(Sketcher.Constraint("DistanceX", 0, 3, 1, 3, Q("41 mm")))
pocket3 = body.newObject("PartDesign::Pocket", "Pocket002")
pocket3.Profile = sketch5
pocket3.Type = "ThroughAll"
doc.recompute()

fillet = body.newObject("PartDesign::Fillet", "Fillet")
fillet.Base = (pocket3, edges_at(pocket3, [
    (-80, 6, -23),
    (-80, 6, 23),
    (23, 6, 80),
    (-23, 6, 80),
    (80, 6, -23),
    (80, 6, 23),
]))
fillet.Radius = 10

# Sketch on XZ plane
sketch6 = body.newObject("Sketcher::SketchObject", "Sketch005")
sketch6.AttachmentSupport = (doc.getObject("XZ_Plane"), [""])
sketch6.MapMode = "FlatFace"
sketch6.AttachmentOffset = App.Placement(V(0, 0, -11), App.Rotation())
sketch6.addGeometry(Part.Circle(V(-49, -39, 0), V(0, 0, 1), 3), False)
sketch6.addGeometry(Part.Circle(V(-49, -39, 0), V(0, 0, 1), 1.25), False)
sketch6.addGeometry(Part.Circle(V(0, -39, 0), V(0, 0, 1), 3), False)
sketch6.addGeometry(Part.Circle(V(0, -39, 0), V(0, 0, 1), 1.25), False)
sketch6.addGeometry(Part.Circle(V(0, 19, 0), V(0, 0, 1), 3), False)
sketch6.addGeometry(Part.Circle(V(0, 19, 0), V(0, 0, 1), 1.25), False)
sketch6.addGeometry(Part.Circle(V(-49, 19, 0), V(0, 0, 1), 3), False)
sketch6.addGeometry(Part.Circle(V(-49, 19, 0), V(0, 0, 1), 1.25), False)
sketch6.addConstraint(Sketcher.Constraint("Coincident", 1, 3, 0, 3))
sketch6.addConstraint(Sketcher.Constraint("Coincident", 3, 3, 2, 3))
sketch6.addConstraint(Sketcher.Constraint("Coincident", 5, 3, 4, 3))
sketch6.addConstraint(Sketcher.Constraint("Coincident", 7, 3, 6, 3))
sketch6.addConstraint(Sketcher.Constraint("Equal", 0, 2))
sketch6.addConstraint(Sketcher.Constraint("Equal", 1, 3))
sketch6.addConstraint(Sketcher.Constraint("Equal", 2, 4))
sketch6.addConstraint(Sketcher.Constraint("Equal", 3, 5))
sketch6.addConstraint(Sketcher.Constraint("Equal", 4, 6))
sketch6.addConstraint(Sketcher.Constraint("Equal", 5, 7))
sketch6.addConstraint(Sketcher.Constraint("PointOnObject", 2, 3, -2))
sketch6.addConstraint(Sketcher.Constraint("PointOnObject", 4, 3, -2))
sketch6.addConstraint(Sketcher.Constraint("Horizontal", 1, 3, 2, 3))
sketch6.addConstraint(Sketcher.Constraint("Horizontal", 5, 3, 6, 3))
sketch6.addConstraint(Sketcher.Constraint("Vertical", 1, 3, 6, 3))
sketch6.addConstraint(Sketcher.Constraint("Diameter", 0, Q("6 mm")))
sketch6.addConstraint(Sketcher.Constraint("Diameter", 1, Q("2.5 mm")))
sketch6.addConstraint(Sketcher.Constraint("DistanceX", 0, 3, -1, 1, Q("49 mm")))
sketch6.addConstraint(Sketcher.Constraint("DistanceY", 0, 3, -1, 1, Q("39 mm")))
sketch6.addConstraint(Sketcher.Constraint("DistanceY", -1, 1, 4, 3, Q("19 mm")))
pad3 = body.newObject("PartDesign::Pad", "Pad002")
pad3.Profile = sketch6
pad3.Length = 5

doc.recompute()
